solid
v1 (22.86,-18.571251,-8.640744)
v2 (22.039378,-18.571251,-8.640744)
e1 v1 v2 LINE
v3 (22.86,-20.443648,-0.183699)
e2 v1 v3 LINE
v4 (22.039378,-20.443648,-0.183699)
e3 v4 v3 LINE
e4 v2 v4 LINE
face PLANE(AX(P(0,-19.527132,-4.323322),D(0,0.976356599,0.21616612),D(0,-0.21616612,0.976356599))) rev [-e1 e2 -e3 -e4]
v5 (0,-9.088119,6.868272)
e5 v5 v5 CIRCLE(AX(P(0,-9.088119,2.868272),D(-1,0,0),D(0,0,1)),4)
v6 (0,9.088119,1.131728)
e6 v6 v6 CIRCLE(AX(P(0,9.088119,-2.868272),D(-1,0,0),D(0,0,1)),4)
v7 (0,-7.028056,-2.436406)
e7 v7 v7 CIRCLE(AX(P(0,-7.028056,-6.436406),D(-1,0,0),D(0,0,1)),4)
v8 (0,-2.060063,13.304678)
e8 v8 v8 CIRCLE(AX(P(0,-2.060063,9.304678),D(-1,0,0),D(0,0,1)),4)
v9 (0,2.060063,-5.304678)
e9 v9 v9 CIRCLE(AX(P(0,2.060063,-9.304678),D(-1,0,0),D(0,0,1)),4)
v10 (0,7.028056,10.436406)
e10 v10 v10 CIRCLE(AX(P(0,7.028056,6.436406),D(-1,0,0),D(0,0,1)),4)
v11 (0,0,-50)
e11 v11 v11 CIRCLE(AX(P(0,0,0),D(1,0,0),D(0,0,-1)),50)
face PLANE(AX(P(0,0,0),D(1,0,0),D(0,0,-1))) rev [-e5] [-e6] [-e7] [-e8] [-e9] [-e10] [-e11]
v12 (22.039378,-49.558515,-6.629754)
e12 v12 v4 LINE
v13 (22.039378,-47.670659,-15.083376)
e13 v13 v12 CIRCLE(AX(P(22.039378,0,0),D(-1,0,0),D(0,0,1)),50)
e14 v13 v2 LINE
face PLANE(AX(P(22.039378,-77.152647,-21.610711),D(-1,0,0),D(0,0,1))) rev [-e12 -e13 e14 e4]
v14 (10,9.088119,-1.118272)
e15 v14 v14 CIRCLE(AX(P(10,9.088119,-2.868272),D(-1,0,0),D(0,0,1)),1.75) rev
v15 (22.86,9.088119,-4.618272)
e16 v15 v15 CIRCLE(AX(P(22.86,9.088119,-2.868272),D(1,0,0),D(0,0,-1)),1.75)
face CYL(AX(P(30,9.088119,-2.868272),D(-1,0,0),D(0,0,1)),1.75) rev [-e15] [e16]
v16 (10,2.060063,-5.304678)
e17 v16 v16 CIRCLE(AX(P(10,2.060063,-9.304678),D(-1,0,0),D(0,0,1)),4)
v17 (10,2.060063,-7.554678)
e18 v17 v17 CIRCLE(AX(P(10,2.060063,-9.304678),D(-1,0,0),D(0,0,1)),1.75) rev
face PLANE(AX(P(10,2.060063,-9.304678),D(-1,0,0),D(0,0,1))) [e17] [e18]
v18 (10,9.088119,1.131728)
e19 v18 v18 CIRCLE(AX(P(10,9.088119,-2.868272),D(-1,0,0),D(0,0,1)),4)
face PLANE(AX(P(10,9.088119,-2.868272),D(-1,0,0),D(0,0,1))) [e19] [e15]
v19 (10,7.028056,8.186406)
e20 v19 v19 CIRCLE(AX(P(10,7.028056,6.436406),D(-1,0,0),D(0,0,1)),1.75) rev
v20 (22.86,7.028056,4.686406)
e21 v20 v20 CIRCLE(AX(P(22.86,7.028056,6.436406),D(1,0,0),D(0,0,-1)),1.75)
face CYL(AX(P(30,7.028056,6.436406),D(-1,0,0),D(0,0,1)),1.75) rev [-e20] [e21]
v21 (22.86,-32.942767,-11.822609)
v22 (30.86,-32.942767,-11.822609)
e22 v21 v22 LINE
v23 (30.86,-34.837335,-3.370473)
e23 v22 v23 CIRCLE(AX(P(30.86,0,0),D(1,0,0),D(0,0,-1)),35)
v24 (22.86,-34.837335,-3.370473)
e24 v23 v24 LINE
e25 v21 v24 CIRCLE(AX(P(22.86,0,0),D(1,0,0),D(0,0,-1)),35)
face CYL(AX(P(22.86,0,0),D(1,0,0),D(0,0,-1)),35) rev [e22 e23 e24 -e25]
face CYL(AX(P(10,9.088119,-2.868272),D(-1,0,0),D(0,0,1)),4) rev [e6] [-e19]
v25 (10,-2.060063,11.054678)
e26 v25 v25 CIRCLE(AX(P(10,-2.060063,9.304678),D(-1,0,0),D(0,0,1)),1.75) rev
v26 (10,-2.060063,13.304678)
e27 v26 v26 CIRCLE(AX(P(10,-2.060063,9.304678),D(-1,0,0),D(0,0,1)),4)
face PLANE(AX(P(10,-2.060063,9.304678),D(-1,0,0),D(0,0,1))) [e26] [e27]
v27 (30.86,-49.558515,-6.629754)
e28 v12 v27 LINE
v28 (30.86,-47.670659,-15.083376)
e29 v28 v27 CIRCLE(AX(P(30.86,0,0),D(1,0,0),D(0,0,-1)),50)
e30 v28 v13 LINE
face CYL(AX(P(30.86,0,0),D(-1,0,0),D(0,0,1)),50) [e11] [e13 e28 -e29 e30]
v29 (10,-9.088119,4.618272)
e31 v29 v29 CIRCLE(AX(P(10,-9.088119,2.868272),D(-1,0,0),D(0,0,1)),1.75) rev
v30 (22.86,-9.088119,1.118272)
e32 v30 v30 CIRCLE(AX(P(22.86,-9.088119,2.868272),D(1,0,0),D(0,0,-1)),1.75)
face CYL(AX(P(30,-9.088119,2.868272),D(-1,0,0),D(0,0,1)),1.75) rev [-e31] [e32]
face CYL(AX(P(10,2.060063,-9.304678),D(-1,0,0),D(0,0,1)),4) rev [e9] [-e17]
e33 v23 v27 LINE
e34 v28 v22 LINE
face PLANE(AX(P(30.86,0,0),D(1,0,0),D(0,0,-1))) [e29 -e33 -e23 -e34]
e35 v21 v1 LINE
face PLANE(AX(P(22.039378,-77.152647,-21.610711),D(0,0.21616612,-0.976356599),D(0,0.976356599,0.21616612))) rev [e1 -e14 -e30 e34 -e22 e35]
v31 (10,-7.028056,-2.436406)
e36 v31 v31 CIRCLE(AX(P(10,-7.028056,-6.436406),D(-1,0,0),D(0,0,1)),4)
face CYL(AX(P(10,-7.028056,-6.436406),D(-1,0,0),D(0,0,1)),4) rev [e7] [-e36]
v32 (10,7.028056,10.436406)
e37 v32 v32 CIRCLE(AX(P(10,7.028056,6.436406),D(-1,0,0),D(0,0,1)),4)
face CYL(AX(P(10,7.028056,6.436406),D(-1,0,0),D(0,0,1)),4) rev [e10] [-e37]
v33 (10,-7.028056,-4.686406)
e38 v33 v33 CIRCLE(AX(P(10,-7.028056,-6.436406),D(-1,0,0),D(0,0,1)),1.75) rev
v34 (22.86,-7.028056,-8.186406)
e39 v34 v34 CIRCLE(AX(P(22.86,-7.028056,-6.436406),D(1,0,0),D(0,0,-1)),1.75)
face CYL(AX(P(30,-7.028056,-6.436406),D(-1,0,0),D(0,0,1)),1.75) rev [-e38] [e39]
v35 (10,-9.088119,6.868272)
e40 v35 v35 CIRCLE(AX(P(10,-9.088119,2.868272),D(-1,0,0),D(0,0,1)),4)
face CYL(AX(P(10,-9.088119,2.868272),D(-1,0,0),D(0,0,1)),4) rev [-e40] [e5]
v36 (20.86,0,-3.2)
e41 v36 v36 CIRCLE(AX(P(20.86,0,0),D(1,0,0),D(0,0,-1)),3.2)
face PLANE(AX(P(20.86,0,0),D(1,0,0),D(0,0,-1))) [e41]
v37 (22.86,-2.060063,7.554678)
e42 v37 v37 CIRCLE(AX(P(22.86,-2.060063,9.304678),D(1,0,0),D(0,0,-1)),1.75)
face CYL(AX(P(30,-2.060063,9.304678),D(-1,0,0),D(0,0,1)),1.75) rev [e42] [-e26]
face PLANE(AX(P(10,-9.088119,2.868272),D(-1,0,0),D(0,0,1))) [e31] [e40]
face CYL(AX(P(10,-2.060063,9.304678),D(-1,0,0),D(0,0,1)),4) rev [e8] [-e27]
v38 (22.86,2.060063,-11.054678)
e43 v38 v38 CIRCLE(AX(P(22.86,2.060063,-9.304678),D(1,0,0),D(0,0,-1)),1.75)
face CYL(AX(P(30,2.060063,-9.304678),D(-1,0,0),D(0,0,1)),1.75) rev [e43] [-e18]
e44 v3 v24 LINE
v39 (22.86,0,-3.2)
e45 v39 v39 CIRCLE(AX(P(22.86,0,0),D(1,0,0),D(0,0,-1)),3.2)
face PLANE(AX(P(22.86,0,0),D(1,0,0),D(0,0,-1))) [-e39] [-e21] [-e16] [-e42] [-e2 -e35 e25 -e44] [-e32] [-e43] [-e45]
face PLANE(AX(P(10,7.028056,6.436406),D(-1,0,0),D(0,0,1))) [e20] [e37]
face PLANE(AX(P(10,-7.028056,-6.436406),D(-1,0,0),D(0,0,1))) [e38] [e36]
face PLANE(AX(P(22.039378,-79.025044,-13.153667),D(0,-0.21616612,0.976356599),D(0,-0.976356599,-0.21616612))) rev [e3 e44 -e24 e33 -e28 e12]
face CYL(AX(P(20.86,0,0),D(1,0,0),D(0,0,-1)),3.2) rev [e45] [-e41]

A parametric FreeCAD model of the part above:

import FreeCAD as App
import Part
import Sketcher
from FreeCAD import Vector
Q = App.Units.Quantity

doc = App.newDocument("Part")
params = doc.addObject("Spreadsheet::Sheet", "Params")
for row, (alias, value) in enumerate([
    ("sketch1_diameter", "100 mm"),
    ("pad1_length", "30.86 mm"),
    ("sketch2_diameter", "70 mm"),
    ("pocket1_length", "8 mm"),
    ("pocket2_length", "60 mm"),
    ("sketch4_diameter", "6.4 mm"),
    ("pocket3_length", "2 mm"),
    ("sketch5_diameter", "3.5 mm"),
    ("pocket4_length", "30 mm"),
    ("sketch6_diameter", "8 mm"),
    ("pocket5_length", "10 mm"),
], start=1):
    params.set(f"A{row}", alias)
    params.set(f"B{row}", "=" + value)
    params.setAlias(f"B{row}", alias)

body = doc.addObject("PartDesign::Body", "Body")

sketch1 = doc.addObject("Sketcher::SketchObject", "Sketch")
body.addObject(sketch1)
sketch1.AttachmentSupport = (doc.YZ_Plane, [""])
sketch1.MapMode = "FlatFace"
sketch1.addGeometry(Part.Circle(Vector(0, 0, 0), Vector(0, 0, 1), 50), False)
sketch1.addConstraint([
    Sketcher.Constraint("Coincident", 0, 3, -1, 1),
    Sketcher.Constraint("Diameter", 0, Q("100 mm")),
])
sketch1.setExpression("Constraints[1]", "Params.sketch1_diameter")
pad1 = doc.addObject("PartDesign::Pad", "Pad")
body.addObject(pad1)
pad1.Profile = sketch1
pad1.setExpression("Length", "Params.pad1_length")

sketch2 = doc.addObject("Sketcher::SketchObject", "Sketch001")
body.addObject(sketch2)
sketch2.AttachmentSupport = (doc.YZ_Plane, [""])
sketch2.MapMode = "FlatFace"
sketch2.AttachmentOffset = App.Placement(Vector(0, 0, 30.86), App.Rotation())
sketch2.addGeometry(Part.Circle(Vector(0, 0, 0), Vector(0, 0, 1), 35), False)
sketch2.addConstraint([
    Sketcher.Constraint("Coincident", 0, 3, -1, 1),
    Sketcher.Constraint("Diameter", 0, Q("70 mm")),
])
sketch2.setExpression("Constraints[1]", "Params.sketch2_diameter")
pocket1 = doc.addObject("PartDesign::Pocket", "Pocket")
body.addObject(pocket1)
pocket1.Profile = sketch2
pocket1.setExpression("Length", "Params.pocket1_length")

sketch3 = doc.addObject("Sketcher::SketchObject", "Sketch002")
body.addObject(sketch3)
sketch3.Placement = App.Placement(Vector(0, -19.527132, -4.323322), App.Rotation(Vector(1, 0, 0), Vector(0, 0.21616612, -0.976356599), Vector(0, 0.976356599, 0.21616612), "ZXY"))
sketch3.addGeometry([
    Part.LineSegment(Vector(22, 4, 0), Vector(22, -4, 0)),
    Part.LineSegment(Vector(22, -4, 0), Vector(32, -4, 0)),
    Part.LineSegment(Vector(32, -4, 0), Vector(32, 4, 0)),
    Part.LineSegment(Vector(32, 4, 0), Vector(22, 4, 0)),
], False)
sketch3.addConstraint([
    Sketcher.Constraint("Coincident", 0, 2, 1, 1),
    Sketcher.Constraint("Coincident", 1, 2, 2, 1),
    Sketcher.Constraint("Coincident", 2, 2, 3, 1),
    Sketcher.Constraint("Coincident", 3, 2, 0, 1),
    Sketcher.Constraint("Vertical", 0),
    Sketcher.Constraint("Horizontal", 1),
    Sketcher.Constraint("Vertical", 2),
    Sketcher.Constraint("Horizontal", 3),
    Sketcher.Constraint("DistanceX", 1, 1, 1, 2, Q("10.01876 mm")),
    Sketcher.Constraint("DistanceY", 0, 2, 0, 1, Q("8.66184 mm")),
    Sketcher.Constraint("DistanceX", -1, 1, 0, 2, Q("22.039378 mm")),
    Sketcher.Constraint("DistanceY", 0, 2, -1, 1, Q("4.239868 mm")),
])
pocket2 = doc.addObject("PartDesign::Pocket", "Pocket001")
body.addObject(pocket2)
pocket2.Profile = sketch3
pocket2.setExpression("Length", "Params.pocket2_length")

sketch4 = doc.addObject("Sketcher::SketchObject", "Sketch003")
body.addObject(sketch4)
sketch4.AttachmentSupport = (doc.YZ_Plane, [""])
sketch4.MapMode = "FlatFace"
sketch4.AttachmentOffset = App.Placement(Vector(0, 0, 22.86), App.Rotation())
sketch4.addGeometry(Part.Circle(Vector(0, 0, 0), Vector(0, 0, 1), 3.2), False)
sketch4.addConstraint([
    Sketcher.Constraint("Coincident", 0, 3, -1, 1),
    Sketcher.Constraint("Diameter", 0, Q("6.4 mm")),
])
sketch4.setExpression("Constraints[1]", "Params.sketch4_diameter")
pocket3 = doc.addObject("PartDesign::Pocket", "Pocket002")
body.addObject(pocket3)
pocket3.Profile = sketch4
pocket3.setExpression("Length", "Params.pocket3_length")

sketch5 = doc.addObject("Sketcher::SketchObject", "Sketch004")
body.addObject(sketch5)
sketch5.AttachmentSupport = (doc.YZ_Plane, [""])
sketch5.MapMode = "FlatFace"
sketch5.addGeometry([
    Part.Circle(Vector(-9.1, 2.9, 0), Vector(0, 0, 1), 1.8),
    Part.Circle(Vector(-7, -6.4, 0), Vector(0, 0, 1), 1.8),
    Part.Circle(Vector(2.1, -9.3, 0), Vector(0, 0, 1), 1.8),
    Part.Circle(Vector(9.1, -2.9, 0), Vector(0, 0, 1), 1.8),
    Part.Circle(Vector(7, 6.4, 0), Vector(0, 0, 1), 1.8),
    Part.Circle(Vector(-2.1, 9.3, 0), Vector(0, 0, 1), 1.8),
], False)
sketch5.addConstraint([
    Sketcher.Constraint("Equal", 0, 1),
    Sketcher.Constraint("Equal", 1, 2),
    Sketcher.Constraint("Equal", 2, 3),
    Sketcher.Constraint("Equal", 3, 4),
    Sketcher.Constraint("Equal", 4, 5),
    Sketcher.Constraint("Symmetric", 0, 3, 3, 3, -1, 1),
    Sketcher.Constraint("Symmetric", 1, 3, 4, 3, -1, 1),
    Sketcher.Constraint("Symmetric", 2, 3, 5, 3, -1, 1),
    Sketcher.Constraint("Diameter", 0, Q("3.5 mm")),
    Sketcher.Constraint("DistanceX", 0, 3, -1, 1, Q("9.088119 mm")),
    Sketcher.Constraint("DistanceY", 2, 3, -1, 1, Q("9.304678 mm")),
    Sketcher.Constraint("DistanceY", 1, 3, 0, 3, Q("9.304678 mm")),
    Sketcher.Constraint("DistanceX", 1, 3, 2, 3, Q("9.088119 mm")),
    Sketcher.Constraint("DistanceY", 2, 3, 0, 3, Q("12.172951 mm")),
    Sketcher.Constraint("DistanceX", 1, 3, -1, 1, Q("7.028056 mm")),
])
sketch5.setExpression("Constraints[8]", "Params.sketch5_diameter")
pocket4 = doc.addObject("PartDesign::Pocket", "Pocket003")
body.addObject(pocket4)
pocket4.Profile = sketch5
pocket4.setExpression("Length", "Params.pocket4_length")
pocket4.Reversed = True

sketch6 = doc.addObject("Sketcher::SketchObject", "Sketch005")
body.addObject(sketch6)
sketch6.AttachmentSupport = (doc.YZ_Plane, [""])
sketch6.MapMode = "FlatFace"
sketch6.addGeometry([
    Part.Circle(Vector(9.1, -2.9, 0), Vector(0, 0, 1), 4),
    Part.Circle(Vector(7, 6.4, 0), Vector(0, 0, 1), 4),
    Part.Circle(Vector(-2.1, 9.3, 0), Vector(0, 0, 1), 4),
    Part.Circle(Vector(-9.1, 2.9, 0), Vector(0, 0, 1), 4),
    Part.Circle(Vector(-7, -6.4, 0), Vector(0, 0, 1), 4),
    Part.Circle(Vector(2.1, -9.3, 0), Vector(0, 0, 1), 4),
], False)
sketch6.addConstraint([
    Sketcher.Constraint("Equal", 0, 1),
    Sketcher.Constraint("Equal", 1, 2),
    Sketcher.Constraint("Equal", 2, 3),
    Sketcher.Constraint("Equal", 3, 4),
    Sketcher.Constraint("Equal", 4, 5),
    Sketcher.Constraint("Symmetric", 0, 3, 3, 3, -1, 1),
    Sketcher.Constraint("Symmetric", 1, 3, 4, 3, -1, 1),
    Sketcher.Constraint("Symmetric", 2, 3, 5, 3, -1, 1),
    Sketcher.Constraint("Diameter", 0, Q("8 mm")),
    Sketcher.Constraint("DistanceX", -1, 1, 0, 3, Q("9.088119 mm")),
    Sketcher.Constraint("DistanceY", -1, 1, 2, 3, Q("9.304678 mm")),
    Sketcher.Constraint("DistanceY", 0, 3, 1, 3, Q("9.304678 mm")),
    Sketcher.Constraint("DistanceX", 2, 3, 1, 3, Q("9.088119 mm")),
    Sketcher.Constraint("DistanceY", 0, 3, 2, 3, Q("12.172951 mm")),
    Sketcher.Constraint("DistanceX", -1, 1, 1, 3, Q("7.028056 mm")),
])
sketch6.setExpression("Constraints[8]", "Params.sketch6_diameter")
pocket5 = doc.addObject("PartDesign::Pocket", "Pocket004")
body.addObject(pocket5)
pocket5.Profile = sketch6
pocket5.setExpression("Length", "Params.pocket5_length")
pocket5.Reversed = True

doc.recompute()
